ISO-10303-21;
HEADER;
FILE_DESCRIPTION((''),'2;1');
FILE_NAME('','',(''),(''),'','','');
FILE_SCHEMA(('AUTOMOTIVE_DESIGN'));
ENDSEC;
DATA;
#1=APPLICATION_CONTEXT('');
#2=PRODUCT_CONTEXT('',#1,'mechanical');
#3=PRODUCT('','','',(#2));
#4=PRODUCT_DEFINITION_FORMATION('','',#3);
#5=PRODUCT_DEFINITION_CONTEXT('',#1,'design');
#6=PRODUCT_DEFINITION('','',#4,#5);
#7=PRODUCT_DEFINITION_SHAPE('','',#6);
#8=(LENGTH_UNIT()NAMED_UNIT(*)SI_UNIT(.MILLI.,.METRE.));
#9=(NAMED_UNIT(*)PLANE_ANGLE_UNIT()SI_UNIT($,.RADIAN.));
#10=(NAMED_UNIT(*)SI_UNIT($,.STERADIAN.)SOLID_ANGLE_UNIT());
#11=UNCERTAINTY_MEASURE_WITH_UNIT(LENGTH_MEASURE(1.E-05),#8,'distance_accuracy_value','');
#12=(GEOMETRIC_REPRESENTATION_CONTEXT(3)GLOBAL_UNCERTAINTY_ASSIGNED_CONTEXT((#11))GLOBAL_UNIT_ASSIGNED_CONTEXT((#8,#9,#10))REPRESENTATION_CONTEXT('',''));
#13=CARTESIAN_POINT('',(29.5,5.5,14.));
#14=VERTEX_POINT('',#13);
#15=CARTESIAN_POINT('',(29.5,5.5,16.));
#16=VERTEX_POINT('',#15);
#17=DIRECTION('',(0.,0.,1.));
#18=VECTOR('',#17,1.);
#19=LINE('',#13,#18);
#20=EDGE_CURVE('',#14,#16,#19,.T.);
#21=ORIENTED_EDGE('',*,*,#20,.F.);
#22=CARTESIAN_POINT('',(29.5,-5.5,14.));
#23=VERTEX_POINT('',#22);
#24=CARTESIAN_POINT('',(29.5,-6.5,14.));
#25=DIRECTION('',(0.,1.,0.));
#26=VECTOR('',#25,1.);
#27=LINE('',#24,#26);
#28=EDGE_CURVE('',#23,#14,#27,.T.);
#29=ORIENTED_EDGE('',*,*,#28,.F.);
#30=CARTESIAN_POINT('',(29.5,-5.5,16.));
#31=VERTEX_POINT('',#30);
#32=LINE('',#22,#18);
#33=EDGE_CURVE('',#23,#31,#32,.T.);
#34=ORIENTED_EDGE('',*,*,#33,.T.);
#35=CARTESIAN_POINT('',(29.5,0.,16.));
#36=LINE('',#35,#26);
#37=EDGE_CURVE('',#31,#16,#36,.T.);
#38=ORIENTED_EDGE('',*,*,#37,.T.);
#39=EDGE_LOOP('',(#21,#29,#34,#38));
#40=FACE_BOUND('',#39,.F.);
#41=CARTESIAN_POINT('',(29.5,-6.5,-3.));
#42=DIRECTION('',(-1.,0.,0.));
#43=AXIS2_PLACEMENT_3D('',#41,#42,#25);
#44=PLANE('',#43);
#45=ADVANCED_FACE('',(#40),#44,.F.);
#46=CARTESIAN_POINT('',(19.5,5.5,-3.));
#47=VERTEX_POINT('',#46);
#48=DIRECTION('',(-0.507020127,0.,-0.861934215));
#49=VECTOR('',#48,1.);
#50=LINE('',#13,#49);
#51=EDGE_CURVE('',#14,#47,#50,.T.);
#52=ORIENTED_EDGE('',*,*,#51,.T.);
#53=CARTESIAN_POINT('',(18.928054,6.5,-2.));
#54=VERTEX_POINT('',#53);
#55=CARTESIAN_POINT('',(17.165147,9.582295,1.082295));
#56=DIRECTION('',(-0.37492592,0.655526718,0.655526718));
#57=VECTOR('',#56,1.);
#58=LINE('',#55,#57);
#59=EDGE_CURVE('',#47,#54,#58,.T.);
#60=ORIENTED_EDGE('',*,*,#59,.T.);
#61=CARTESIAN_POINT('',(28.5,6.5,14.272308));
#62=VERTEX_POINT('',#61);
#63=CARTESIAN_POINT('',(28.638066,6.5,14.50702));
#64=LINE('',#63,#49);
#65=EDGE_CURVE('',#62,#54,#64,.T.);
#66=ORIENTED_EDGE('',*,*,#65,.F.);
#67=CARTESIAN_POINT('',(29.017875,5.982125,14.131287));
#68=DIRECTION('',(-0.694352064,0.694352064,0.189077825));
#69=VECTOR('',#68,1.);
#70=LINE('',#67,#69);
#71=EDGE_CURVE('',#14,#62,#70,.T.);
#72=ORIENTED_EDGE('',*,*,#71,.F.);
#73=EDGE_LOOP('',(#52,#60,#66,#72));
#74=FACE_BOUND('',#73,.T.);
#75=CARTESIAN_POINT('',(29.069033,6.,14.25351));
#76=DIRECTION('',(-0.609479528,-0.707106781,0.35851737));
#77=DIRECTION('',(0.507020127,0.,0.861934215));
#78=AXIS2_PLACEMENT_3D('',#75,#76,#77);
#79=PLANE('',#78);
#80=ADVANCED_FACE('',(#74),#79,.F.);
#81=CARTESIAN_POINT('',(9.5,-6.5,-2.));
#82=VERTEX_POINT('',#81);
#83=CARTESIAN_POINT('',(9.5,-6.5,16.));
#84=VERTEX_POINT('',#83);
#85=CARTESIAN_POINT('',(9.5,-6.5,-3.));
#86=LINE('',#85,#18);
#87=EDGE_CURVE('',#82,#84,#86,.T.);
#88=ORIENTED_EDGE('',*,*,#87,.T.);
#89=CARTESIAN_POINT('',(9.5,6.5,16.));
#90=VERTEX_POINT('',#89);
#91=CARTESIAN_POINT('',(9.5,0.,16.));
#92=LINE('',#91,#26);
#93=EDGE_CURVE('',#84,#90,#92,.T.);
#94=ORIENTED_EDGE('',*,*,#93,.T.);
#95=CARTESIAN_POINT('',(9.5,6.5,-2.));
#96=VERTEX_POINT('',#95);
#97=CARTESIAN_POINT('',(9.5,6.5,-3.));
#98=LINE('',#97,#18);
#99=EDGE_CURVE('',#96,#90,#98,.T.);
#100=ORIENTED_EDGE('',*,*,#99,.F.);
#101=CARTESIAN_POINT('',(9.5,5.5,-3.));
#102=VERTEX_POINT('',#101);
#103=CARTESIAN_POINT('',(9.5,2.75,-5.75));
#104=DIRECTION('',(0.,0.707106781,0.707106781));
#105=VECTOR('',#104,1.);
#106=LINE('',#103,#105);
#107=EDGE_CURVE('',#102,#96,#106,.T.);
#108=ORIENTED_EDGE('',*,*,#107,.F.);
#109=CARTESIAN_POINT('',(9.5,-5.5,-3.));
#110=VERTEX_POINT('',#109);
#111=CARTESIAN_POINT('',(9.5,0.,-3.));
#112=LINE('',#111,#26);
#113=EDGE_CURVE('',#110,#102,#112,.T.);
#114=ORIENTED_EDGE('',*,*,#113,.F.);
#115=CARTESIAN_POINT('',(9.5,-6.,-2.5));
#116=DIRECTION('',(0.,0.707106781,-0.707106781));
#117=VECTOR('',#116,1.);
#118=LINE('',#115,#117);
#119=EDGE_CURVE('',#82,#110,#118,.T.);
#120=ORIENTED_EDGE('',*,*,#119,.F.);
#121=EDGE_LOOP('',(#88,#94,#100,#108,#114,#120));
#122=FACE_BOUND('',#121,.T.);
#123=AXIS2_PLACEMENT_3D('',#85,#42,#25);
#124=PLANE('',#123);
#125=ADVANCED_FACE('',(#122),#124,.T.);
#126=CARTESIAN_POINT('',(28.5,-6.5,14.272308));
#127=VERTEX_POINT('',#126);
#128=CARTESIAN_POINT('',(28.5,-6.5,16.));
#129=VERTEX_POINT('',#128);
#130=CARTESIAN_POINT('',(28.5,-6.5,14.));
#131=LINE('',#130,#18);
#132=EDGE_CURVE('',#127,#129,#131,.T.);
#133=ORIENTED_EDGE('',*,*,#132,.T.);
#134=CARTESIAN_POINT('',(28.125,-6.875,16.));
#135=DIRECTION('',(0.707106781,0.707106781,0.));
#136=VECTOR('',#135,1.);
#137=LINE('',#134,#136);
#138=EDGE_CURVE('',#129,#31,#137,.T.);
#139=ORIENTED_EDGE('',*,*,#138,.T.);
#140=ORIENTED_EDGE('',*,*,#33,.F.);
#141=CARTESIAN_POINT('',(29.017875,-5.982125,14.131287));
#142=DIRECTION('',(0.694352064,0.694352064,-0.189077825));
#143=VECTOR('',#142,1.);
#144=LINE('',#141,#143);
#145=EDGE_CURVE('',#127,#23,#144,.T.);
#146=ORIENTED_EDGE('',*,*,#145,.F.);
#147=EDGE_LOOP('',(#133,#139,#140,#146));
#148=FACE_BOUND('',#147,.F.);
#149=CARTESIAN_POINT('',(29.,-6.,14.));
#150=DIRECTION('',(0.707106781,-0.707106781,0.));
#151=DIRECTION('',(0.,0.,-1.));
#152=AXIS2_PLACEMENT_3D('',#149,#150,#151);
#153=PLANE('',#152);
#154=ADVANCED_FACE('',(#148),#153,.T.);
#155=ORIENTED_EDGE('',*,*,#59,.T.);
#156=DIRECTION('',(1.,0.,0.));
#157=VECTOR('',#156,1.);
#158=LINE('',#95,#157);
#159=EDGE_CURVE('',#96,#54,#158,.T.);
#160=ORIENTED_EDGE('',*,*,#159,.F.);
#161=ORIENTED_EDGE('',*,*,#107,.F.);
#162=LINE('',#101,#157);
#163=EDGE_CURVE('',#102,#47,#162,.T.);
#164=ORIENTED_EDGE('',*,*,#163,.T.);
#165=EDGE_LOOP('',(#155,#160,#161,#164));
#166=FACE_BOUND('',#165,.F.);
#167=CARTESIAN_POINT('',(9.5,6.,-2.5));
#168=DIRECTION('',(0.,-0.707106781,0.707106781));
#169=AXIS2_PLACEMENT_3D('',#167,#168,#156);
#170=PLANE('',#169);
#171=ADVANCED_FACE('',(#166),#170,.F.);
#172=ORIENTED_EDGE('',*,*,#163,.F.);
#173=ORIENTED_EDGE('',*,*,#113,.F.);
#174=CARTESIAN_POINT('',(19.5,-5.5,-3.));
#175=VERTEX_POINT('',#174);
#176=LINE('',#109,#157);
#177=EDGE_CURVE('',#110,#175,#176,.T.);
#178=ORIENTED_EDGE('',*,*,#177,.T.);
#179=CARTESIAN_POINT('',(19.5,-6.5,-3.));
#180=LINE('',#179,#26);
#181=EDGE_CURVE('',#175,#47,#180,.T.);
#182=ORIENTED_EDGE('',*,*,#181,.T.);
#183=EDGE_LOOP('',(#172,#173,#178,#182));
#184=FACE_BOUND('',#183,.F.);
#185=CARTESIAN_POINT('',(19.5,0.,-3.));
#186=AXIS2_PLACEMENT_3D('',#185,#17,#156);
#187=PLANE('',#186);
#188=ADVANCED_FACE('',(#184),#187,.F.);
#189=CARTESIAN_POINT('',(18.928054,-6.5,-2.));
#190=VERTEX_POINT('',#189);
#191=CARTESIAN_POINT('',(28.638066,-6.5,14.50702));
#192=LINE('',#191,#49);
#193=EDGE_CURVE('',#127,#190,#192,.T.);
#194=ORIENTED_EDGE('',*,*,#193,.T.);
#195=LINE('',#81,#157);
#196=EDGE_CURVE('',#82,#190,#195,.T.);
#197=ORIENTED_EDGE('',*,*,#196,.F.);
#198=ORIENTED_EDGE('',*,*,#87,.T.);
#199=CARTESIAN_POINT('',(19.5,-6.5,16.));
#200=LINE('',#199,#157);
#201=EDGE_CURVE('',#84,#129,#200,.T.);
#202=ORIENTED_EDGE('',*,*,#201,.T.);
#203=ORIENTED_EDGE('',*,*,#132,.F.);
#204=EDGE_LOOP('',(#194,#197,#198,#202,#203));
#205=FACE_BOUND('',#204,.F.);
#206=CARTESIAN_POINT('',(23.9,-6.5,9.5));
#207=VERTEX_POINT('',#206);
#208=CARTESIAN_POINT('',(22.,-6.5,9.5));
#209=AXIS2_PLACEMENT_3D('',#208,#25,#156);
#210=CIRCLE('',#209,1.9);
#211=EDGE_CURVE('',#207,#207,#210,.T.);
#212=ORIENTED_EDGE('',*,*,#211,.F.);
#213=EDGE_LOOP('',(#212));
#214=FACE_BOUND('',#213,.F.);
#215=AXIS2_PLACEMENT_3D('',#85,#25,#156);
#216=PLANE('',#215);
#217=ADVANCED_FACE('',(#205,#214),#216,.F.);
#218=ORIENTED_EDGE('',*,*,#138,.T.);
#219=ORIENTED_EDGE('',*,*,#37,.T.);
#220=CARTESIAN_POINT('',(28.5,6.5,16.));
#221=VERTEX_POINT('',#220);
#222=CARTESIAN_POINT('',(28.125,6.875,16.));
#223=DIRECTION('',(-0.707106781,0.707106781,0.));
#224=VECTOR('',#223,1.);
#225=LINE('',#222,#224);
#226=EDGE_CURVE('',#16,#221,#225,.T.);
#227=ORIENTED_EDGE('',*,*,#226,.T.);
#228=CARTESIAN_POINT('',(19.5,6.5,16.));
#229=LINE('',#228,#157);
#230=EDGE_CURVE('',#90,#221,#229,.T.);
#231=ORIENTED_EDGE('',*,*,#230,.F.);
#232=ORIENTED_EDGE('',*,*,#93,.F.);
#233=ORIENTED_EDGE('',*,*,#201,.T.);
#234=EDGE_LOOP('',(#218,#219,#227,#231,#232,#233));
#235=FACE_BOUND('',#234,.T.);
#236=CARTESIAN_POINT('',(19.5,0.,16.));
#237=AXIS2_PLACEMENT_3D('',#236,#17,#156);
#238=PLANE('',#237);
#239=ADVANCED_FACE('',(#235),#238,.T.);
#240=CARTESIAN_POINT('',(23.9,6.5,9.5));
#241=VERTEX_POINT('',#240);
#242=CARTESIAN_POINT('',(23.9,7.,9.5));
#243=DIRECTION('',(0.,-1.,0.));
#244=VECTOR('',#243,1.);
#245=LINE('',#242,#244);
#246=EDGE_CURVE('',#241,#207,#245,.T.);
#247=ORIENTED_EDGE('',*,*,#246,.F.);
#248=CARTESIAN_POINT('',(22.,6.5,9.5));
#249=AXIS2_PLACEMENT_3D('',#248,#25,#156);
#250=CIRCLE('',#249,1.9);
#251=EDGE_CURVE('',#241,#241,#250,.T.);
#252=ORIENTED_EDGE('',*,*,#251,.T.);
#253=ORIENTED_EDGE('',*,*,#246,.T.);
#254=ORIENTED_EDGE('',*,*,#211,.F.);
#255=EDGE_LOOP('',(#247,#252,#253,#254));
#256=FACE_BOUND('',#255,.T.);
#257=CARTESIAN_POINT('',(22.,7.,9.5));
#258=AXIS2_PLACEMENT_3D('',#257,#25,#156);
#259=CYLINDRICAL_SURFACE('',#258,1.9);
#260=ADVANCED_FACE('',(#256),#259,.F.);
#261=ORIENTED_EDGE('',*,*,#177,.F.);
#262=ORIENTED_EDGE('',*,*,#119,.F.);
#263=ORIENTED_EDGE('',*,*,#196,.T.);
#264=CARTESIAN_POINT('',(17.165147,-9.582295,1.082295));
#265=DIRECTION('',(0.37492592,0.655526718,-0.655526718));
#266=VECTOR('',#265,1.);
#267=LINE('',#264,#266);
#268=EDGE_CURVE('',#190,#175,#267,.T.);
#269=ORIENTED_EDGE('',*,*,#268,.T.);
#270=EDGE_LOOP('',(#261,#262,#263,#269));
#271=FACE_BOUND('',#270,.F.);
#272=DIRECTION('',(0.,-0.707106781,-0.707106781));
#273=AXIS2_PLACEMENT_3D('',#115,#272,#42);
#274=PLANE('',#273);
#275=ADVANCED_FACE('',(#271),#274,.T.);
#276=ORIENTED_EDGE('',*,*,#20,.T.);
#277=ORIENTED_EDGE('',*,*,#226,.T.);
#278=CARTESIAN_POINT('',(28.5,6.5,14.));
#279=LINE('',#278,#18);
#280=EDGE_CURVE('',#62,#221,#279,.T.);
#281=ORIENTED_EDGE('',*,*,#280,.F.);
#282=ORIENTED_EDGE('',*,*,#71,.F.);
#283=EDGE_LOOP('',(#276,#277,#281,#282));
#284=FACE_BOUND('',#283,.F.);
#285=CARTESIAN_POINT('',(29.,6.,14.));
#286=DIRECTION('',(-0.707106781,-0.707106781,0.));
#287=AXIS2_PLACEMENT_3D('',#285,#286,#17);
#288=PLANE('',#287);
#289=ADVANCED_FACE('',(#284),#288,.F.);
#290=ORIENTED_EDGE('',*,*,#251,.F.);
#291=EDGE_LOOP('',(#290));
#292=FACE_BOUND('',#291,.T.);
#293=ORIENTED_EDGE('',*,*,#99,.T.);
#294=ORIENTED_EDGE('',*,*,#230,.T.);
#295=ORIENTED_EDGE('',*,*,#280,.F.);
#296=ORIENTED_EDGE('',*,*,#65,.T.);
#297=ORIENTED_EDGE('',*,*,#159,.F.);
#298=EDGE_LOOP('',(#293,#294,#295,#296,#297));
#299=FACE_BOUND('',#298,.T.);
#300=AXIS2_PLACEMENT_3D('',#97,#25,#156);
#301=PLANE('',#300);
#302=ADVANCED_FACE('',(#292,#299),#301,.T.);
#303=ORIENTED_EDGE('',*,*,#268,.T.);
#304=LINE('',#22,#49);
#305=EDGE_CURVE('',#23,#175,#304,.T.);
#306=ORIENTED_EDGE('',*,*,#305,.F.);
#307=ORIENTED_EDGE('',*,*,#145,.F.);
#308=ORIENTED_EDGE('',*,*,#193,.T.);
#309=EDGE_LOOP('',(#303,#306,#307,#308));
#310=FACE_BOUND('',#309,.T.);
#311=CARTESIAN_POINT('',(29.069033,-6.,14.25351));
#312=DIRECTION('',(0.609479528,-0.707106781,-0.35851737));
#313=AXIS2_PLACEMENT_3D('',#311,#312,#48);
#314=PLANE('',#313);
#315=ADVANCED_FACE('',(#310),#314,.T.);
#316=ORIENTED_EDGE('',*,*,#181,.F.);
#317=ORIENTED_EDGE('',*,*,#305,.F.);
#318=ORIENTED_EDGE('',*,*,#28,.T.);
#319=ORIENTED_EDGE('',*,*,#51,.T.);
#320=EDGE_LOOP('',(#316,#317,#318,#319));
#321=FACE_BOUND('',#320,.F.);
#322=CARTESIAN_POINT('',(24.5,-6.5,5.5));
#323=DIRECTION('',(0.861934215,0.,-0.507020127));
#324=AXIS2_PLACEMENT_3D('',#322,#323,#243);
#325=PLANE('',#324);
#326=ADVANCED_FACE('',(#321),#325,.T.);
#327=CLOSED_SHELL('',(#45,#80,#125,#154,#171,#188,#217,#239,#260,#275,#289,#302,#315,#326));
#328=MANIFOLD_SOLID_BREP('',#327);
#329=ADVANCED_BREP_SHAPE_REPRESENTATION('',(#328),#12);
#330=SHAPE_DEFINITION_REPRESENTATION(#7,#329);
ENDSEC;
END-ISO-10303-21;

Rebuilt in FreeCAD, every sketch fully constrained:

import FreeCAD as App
import Part
import Sketcher

V = App.Vector
Q = App.Units.Quantity


def edges_at(feature, points):
    """Names of the edges that pass closest to the given points."""
    edges = feature.Shape.Edges
    near = lambda p: min(range(len(edges)), key=lambda i: edges[i].distToShape(Part.Vertex(*p))[0])
    return sorted({f"Edge{near(p) + 1}" for p in points})

doc = App.newDocument("Part")
body = doc.addObject("PartDesign::Body", "Body")

# Sketch on XZ plane
sketch1 = body.newObject("Sketcher::SketchObject", "Sketch")
sketch1.AttachmentSupport = (doc.getObject("XZ_Plane"), [""])
sketch1.MapMode = "FlatFace"
sketch1.AttachmentOffset = App.Placement(V(0, 0, -7), App.Rotation())
sketch1.addGeometry(Part.Circle(V(22, 9.5, 0), V(0, 0, 1), 1.9), False)
sketch1.addConstraint(Sketcher.Constraint("Diameter", 0, Q("3.8 mm")))
sketch1.addConstraint(Sketcher.Constraint("DistanceX", -1, 1, 0, 3, Q("22 mm")))
sketch1.addConstraint(Sketcher.Constraint("DistanceY", -1, 1, 0, 3, Q("9.5 mm")))
pad1 = body.newObject("PartDesign::Pad", "Pad")
pad1.Profile = sketch1
pad1.Length = 14
body2 = doc.addObject("PartDesign::Body", "Body001")

# Sketch on XY plane
sketch2 = body2.newObject("Sketcher::SketchObject", "Sketch001")
sketch2.AttachmentSupport = (doc.getObject("XY_Plane001"), [""])
sketch2.MapMode = "FlatFace"
sketch2.AttachmentOffset = App.Placement(V(0, 0, -3), App.Rotation())
sketch2.addGeometry(Part.LineSegment(V(10, 6, 0), V(10, -6, 0)), False)
sketch2.addGeometry(Part.LineSegment(V(10, -6, 0), V(30, -6, 0)), False)
sketch2.addGeometry(Part.LineSegment(V(30, -6, 0), V(30, 6, 0)), False)
sketch2.addGeometry(Part.LineSegment(V(30, 6, 0), V(10, 6, 0)), False)
sketch2.addConstraint(Sketcher.Constraint("Coincident", 0, 2, 1, 1))
sketch2.addConstraint(Sketcher.Constraint("Coincident", 1, 2, 2, 1))
sketch2.addConstraint(Sketcher.Constraint("Coincident", 2, 2, 3, 1))
sketch2.addConstraint(Sketcher.Constraint("Coincident", 3, 2, 0, 1))
sketch2.addConstraint(Sketcher.Constraint("Vertical", 0))
sketch2.addConstraint(Sketcher.Constraint("Horizontal", 1))
sketch2.addConstraint(Sketcher.Constraint("Vertical", 2))
sketch2.addConstraint(Sketcher.Constraint("Horizontal", 3))
sketch2.addConstraint(Sketcher.Constraint("DistanceX", 1, 1, 1, 2, Q("20 mm")))
sketch2.addConstraint(Sketcher.Constraint("DistanceY", 0, 2, 0, 1, Q("13 mm")))
sketch2.addConstraint(Sketcher.Constraint("DistanceX", -1, 1, 0, 2, Q("9.5 mm")))
sketch2.addConstraint(Sketcher.Constraint("DistanceY", 0, 2, -1, 1, Q("6.5 mm")))
pad2 = body2.newObject("PartDesign::Pad", "Pad001")
pad2.Profile = sketch2
pad2.Length = 19
doc.recompute()

chamfer = body2.newObject("PartDesign::Chamfer", "Chamfer")
chamfer.Base = (pad2, edges_at(pad2, [(29.5, 0, -3)]))
chamfer.ChamferType = "Two distances"
chamfer.Size = 17
chamfer.Size2 = 10
doc.recompute()

chamfer2 = body2.newObject("PartDesign::Chamfer", "Chamfer001")
chamfer2.Base = (chamfer, edges_at(chamfer, [
    (29.5, -6.5, 15),
    (29.5, 6.5, 15),
    (14.5, -6.5, -3),
    (24.5, -6.5, 5.5),
    (24.5, 6.5, 5.5),
    (14.5, 6.5, -3),
]))
chamfer2.Size = 1
doc.recompute()

boolean = body2.newObject("PartDesign::Boolean", "Boolean")
boolean.Type = "Cut"
boolean.addObjects([body])

doc.recompute()
